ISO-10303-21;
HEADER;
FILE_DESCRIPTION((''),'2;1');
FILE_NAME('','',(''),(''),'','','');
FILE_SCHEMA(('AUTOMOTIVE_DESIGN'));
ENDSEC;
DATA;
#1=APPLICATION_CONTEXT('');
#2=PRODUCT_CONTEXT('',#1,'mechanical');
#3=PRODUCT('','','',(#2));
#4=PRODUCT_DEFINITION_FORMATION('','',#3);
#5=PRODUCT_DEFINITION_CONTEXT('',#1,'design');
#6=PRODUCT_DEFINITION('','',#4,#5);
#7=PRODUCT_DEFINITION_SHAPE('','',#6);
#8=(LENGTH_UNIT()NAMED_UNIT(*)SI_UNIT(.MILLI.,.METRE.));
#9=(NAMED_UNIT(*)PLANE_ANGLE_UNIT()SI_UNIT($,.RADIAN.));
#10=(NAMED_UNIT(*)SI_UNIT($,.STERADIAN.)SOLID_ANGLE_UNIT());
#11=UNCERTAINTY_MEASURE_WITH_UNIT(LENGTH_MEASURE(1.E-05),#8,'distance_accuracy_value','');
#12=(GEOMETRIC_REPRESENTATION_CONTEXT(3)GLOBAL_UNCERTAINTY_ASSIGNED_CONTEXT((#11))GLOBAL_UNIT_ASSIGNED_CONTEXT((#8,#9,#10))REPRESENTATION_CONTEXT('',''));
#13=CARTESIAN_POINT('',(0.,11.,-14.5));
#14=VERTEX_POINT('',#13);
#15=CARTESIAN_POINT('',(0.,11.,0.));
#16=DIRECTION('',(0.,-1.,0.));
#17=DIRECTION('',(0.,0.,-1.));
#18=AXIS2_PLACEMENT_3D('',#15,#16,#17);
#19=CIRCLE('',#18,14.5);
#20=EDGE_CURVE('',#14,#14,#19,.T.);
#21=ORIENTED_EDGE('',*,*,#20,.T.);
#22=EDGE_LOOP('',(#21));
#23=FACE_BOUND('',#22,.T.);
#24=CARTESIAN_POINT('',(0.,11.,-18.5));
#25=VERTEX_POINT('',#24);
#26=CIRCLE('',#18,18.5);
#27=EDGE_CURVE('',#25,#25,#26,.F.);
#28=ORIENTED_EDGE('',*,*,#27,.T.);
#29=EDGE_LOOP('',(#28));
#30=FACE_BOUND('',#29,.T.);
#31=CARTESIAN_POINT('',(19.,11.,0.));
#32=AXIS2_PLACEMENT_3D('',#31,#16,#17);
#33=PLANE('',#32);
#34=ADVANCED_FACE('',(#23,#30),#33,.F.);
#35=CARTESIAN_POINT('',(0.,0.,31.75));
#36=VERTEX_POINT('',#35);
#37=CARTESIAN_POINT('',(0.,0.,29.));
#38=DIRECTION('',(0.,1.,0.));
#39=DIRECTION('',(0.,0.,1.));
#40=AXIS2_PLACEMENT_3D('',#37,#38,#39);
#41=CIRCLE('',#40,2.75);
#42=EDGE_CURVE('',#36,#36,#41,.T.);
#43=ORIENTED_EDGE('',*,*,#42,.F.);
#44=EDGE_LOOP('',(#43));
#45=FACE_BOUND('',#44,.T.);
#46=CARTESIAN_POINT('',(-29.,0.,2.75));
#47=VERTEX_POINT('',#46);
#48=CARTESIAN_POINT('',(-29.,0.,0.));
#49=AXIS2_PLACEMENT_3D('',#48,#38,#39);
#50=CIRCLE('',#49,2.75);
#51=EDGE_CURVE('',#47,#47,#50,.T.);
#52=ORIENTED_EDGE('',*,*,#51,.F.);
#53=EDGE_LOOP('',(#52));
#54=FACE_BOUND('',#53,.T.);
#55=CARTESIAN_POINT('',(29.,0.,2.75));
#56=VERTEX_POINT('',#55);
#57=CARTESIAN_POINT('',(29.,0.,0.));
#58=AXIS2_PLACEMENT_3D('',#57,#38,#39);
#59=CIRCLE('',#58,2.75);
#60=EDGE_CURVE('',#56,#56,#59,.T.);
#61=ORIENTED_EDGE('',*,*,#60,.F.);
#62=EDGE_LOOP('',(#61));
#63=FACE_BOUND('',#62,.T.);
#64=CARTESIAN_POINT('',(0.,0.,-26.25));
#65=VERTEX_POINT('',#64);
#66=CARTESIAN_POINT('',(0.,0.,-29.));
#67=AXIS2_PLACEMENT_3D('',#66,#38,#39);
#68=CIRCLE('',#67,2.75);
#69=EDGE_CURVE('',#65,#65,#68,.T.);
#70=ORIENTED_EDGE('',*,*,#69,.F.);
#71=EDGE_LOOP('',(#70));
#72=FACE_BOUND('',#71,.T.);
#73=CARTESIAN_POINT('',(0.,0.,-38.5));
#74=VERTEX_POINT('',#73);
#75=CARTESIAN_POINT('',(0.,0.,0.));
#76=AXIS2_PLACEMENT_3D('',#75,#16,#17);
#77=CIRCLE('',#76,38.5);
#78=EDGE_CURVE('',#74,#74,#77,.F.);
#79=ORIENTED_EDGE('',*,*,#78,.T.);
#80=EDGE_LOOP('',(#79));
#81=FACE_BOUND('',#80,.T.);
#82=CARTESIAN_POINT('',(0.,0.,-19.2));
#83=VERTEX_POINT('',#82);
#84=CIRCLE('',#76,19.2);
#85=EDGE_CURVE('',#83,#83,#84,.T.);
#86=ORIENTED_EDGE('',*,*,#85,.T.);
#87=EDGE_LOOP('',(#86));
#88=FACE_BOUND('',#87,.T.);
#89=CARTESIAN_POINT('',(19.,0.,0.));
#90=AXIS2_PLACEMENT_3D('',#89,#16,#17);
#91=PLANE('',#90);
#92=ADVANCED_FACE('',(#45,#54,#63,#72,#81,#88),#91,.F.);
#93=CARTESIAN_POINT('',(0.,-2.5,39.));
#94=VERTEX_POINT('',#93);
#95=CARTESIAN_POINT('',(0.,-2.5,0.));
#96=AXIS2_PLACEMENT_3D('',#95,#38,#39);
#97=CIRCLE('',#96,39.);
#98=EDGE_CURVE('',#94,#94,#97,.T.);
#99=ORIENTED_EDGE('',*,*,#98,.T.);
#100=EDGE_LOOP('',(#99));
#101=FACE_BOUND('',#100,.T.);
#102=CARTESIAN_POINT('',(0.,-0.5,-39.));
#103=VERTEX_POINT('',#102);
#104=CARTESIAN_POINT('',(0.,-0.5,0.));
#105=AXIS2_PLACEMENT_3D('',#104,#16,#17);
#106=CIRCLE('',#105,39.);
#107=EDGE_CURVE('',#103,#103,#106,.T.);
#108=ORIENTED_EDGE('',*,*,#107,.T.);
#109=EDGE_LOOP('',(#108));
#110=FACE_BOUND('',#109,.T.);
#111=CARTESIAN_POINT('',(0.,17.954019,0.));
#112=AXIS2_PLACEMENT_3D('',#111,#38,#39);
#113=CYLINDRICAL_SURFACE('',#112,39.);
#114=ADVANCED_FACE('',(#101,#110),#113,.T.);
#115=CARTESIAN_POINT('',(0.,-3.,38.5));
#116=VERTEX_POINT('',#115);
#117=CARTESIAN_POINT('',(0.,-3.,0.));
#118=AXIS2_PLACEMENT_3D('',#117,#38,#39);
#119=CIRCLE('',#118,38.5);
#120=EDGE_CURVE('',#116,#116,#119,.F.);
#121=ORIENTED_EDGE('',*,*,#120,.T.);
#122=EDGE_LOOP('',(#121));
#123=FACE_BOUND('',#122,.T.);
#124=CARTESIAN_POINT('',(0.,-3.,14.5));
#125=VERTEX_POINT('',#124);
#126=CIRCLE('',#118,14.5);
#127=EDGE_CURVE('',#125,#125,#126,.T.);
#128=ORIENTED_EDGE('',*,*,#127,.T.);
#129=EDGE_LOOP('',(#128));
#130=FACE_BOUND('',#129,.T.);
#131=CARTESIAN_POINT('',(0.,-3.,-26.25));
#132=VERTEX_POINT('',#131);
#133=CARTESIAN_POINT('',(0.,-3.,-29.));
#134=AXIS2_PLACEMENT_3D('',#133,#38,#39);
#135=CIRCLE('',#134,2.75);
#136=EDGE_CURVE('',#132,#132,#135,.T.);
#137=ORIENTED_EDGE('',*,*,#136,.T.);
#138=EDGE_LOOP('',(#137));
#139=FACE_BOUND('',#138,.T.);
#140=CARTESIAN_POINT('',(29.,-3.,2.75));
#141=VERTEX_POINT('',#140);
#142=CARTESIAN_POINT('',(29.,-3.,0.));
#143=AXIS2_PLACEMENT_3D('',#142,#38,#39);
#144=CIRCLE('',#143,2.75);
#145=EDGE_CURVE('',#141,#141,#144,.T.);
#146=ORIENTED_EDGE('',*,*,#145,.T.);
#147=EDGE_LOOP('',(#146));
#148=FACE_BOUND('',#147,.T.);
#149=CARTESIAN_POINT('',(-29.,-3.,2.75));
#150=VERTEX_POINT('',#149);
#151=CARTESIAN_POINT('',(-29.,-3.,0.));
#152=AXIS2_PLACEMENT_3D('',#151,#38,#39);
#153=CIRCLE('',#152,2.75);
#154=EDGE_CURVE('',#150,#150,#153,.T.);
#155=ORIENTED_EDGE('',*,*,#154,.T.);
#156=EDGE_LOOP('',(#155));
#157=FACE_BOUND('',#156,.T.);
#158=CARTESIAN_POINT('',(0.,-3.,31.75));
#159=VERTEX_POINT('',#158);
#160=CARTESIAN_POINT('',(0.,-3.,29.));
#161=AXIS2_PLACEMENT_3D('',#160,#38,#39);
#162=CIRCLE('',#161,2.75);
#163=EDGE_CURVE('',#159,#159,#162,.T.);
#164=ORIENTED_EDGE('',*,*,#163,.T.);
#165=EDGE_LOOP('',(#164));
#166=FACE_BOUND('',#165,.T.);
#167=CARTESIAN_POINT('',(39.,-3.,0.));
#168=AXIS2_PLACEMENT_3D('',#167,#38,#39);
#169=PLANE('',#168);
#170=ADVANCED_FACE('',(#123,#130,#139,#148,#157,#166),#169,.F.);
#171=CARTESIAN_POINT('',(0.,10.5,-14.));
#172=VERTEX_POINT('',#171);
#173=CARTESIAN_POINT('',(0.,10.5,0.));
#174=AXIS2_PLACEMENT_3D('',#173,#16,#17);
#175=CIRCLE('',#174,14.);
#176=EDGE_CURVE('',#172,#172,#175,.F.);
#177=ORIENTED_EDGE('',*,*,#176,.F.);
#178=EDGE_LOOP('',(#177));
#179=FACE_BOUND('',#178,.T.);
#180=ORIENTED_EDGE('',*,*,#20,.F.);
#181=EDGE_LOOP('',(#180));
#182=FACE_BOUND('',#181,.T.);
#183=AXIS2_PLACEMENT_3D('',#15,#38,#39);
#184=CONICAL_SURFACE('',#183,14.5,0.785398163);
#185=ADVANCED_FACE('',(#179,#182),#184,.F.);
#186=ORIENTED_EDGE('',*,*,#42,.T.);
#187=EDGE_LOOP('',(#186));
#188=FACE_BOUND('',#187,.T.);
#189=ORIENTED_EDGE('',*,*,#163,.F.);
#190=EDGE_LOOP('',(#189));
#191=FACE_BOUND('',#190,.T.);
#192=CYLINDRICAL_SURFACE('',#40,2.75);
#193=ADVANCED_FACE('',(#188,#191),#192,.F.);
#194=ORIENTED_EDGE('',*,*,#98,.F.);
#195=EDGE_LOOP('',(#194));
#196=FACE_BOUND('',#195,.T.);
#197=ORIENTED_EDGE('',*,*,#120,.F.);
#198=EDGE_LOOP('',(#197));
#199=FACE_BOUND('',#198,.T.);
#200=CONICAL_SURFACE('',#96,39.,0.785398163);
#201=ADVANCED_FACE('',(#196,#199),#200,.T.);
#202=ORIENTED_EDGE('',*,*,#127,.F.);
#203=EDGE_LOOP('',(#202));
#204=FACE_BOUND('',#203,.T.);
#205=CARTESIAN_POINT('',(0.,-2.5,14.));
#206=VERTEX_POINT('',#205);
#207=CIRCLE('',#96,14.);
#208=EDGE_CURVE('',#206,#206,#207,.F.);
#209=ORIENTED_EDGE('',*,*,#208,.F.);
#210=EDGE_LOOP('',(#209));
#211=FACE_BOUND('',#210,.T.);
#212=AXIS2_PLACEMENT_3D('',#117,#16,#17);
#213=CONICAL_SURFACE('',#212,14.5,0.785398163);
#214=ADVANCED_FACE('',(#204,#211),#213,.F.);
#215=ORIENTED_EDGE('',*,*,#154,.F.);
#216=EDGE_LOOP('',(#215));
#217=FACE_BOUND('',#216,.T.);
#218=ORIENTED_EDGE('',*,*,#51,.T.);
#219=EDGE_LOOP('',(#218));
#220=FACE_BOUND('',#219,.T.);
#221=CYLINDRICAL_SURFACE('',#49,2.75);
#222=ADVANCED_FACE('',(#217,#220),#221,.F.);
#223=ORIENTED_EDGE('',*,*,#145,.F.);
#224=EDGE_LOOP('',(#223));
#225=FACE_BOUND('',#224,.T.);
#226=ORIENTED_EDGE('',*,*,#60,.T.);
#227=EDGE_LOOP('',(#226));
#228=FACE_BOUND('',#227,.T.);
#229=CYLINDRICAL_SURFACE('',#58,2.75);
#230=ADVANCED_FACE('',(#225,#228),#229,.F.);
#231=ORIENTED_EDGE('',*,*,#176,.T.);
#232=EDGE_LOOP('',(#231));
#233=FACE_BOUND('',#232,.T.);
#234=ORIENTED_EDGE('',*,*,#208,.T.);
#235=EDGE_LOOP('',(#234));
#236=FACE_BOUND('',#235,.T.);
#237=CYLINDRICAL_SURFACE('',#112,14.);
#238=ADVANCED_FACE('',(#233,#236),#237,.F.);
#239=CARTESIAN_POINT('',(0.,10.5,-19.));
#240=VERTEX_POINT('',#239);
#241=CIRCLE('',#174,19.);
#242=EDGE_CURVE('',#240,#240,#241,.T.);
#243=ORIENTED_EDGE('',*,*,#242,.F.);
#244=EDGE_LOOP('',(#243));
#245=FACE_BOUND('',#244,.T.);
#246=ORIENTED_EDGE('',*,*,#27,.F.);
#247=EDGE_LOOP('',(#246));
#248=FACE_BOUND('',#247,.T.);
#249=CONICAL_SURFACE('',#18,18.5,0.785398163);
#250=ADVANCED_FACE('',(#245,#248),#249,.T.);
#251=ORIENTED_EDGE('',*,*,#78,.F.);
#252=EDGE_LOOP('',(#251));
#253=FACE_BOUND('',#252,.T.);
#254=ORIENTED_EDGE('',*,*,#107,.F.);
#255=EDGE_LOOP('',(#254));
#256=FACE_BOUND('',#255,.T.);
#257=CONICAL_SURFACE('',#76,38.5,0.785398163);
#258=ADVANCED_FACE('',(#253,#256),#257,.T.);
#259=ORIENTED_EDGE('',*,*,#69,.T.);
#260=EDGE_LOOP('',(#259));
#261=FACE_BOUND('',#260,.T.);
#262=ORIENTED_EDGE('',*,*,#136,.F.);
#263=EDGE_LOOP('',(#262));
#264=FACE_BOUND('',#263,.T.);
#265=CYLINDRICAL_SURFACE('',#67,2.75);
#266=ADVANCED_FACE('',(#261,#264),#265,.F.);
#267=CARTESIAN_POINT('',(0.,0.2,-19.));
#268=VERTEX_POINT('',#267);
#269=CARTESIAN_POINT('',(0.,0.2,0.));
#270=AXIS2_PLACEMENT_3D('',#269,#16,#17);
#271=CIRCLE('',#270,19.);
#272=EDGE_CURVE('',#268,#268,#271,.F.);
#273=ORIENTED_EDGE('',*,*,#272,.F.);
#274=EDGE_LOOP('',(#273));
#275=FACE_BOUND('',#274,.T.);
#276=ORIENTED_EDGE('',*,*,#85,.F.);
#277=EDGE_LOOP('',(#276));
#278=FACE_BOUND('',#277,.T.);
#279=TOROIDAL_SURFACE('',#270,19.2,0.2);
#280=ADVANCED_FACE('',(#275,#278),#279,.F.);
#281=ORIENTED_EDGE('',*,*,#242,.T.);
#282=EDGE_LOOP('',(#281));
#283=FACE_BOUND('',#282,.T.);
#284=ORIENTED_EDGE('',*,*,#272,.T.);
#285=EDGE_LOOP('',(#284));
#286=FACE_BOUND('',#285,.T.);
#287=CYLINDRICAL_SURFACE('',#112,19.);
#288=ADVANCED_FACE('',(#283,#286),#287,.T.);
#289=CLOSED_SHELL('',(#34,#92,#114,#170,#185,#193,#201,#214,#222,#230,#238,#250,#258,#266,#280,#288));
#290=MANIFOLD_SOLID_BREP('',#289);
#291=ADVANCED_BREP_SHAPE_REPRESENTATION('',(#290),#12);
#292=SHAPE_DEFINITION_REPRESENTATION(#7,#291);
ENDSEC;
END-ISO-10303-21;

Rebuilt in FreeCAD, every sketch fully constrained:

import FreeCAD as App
import Part
import Sketcher
Q = App.Units.Quantity


def edges_at(feature, points):
    """Names of the edges that pass closest to the given points."""
    edges = feature.Shape.Edges
    near = lambda p: min(range(len(edges)), key=lambda i: edges[i].distToShape(Part.Vertex(*p))[0])
    return sorted({f"Edge{near(p) + 1}" for p in points})

doc = App.newDocument("Part")
params = doc.addObject("Spreadsheet::Sheet", "Params")
for row, (alias, value) in enumerate([
    ("sketch1_width", "25 mm"),
    ("sketch1_width2", "20 mm"),
    ("sketch1_width3", "7 mm"),
    ("sketch1_height", "11 mm"),
    ("sketch1_height2", "3 mm"),
    ("revolution_angle", "360 deg"),
    ("sketch2_diameter", "5.5 mm"),
    ("hole_diameter", "5.5 mm"),
    ("fillet_radius", "0.2 mm"),
    ("chamfer_size", "0.5 mm"),
    ("sketch3_diameter", "28 mm"),
    ("chamfer2_size", "0.5 mm"),
], start=1):
    params.set(f"A{row}", alias)
    params.set(f"B{row}", "=" + value)
    params.setAlias(f"B{row}", alias)

body = doc.addObject("PartDesign::Body", "Body")

# Sketch on XY plane
sketch1 = doc.addObject("Sketcher::SketchObject", "Sketch")
body.addObject(sketch1)
sketch1.AttachmentSupport = (doc.XY_Plane, [""])
sketch1.MapMode = "FlatFace"
sketch1.addGeometry(Part.LineSegment(App.Vector(14, 8, 0), App.Vector(14, -3, 0)), False)
sketch1.addGeometry(Part.LineSegment(App.Vector(14, -3, 0), App.Vector(39, -3, 0)), False)
sketch1.addGeometry(Part.LineSegment(App.Vector(39, -3, 0), App.Vector(39, 0, 0)), False)
sketch1.addGeometry(Part.LineSegment(App.Vector(39, 0, 0), App.Vector(19, 0, 0)), False)
sketch1.addGeometry(Part.LineSegment(App.Vector(19, 0, 0), App.Vector(19, 11, 0)), False)
sketch1.addGeometry(Part.LineSegment(App.Vector(19, 11, 0), App.Vector(12, 11, 0)), False)
sketch1.addGeometry(Part.LineSegment(App.Vector(12, 11, 0), App.Vector(12, 8, 0)), False)
sketch1.addGeometry(Part.LineSegment(App.Vector(12, 8, 0), App.Vector(14, 8, 0)), False)
sketch1.addConstraint(Sketcher.Constraint("Coincident", 0, 2, 1, 1))
sketch1.addConstraint(Sketcher.Constraint("Coincident", 1, 2, 2, 1))
sketch1.addConstraint(Sketcher.Constraint("Coincident", 2, 2, 3, 1))
sketch1.addConstraint(Sketcher.Constraint("Coincident", 3, 2, 4, 1))
sketch1.addConstraint(Sketcher.Constraint("Coincident", 4, 2, 5, 1))
sketch1.addConstraint(Sketcher.Constraint("Coincident", 5, 2, 6, 1))
sketch1.addConstraint(Sketcher.Constraint("Coincident", 6, 2, 7, 1))
sketch1.addConstraint(Sketcher.Constraint("Coincident", 7, 2, 0, 1))
sketch1.addConstraint(Sketcher.Constraint("Vertical", 0))
sketch1.addConstraint(Sketcher.Constraint("Horizontal", 1))
sketch1.addConstraint(Sketcher.Constraint("Vertical", 2))
sketch1.addConstraint(Sketcher.Constraint("Horizontal", 3))
sketch1.addConstraint(Sketcher.Constraint("Vertical", 4))
sketch1.addConstraint(Sketcher.Constraint("Horizontal", 5))
sketch1.addConstraint(Sketcher.Constraint("Vertical", 6))
sketch1.addConstraint(Sketcher.Constraint("Horizontal", 7))
sketch1.addConstraint(Sketcher.Constraint("PointOnObject", 2, 2, -1))
sketch1.addConstraint(Sketcher.Constraint("Equal", 0, 4))
sketch1.addConstraint(Sketcher.Constraint("DistanceX", 1, 1, 1, 2, Q("25 mm")))
sketch1.addConstraint(Sketcher.Constraint("DistanceX", 3, 2, 3, 1, Q("20 mm")))
sketch1.addConstraint(Sketcher.Constraint("DistanceX", 5, 2, 5, 1, Q("7 mm")))
sketch1.addConstraint(Sketcher.Constraint("DistanceY", 0, 2, 0, 1, Q("11 mm")))
sketch1.addConstraint(Sketcher.Constraint("DistanceY", 2, 1, 2, 2, Q("3 mm")))
sketch1.addConstraint(Sketcher.Constraint("DistanceX", -1, 1, 0, 2, Q("14 mm")))
sketch1.setExpression("Constraints[18]", "Params.sketch1_width")
sketch1.setExpression("Constraints[19]", "Params.sketch1_width2")
sketch1.setExpression("Constraints[20]", "Params.sketch1_width3")
sketch1.setExpression("Constraints[21]", "Params.sketch1_height")
sketch1.setExpression("Constraints[22]", "Params.sketch1_height2")
revolution = doc.addObject("PartDesign::Revolution", "Revolution")
body.addObject(revolution)
revolution.Profile = sketch1
revolution.ReferenceAxis = (sketch1, ["V_Axis"])
revolution.setExpression("Angle", "Params.revolution_angle")

# Sketch on XZ plane
sketch2 = doc.addObject("Sketcher::SketchObject", "Sketch001")
body.addObject(sketch2)
sketch2.AttachmentSupport = (doc.XZ_Plane, [""])
sketch2.MapMode = "FlatFace"
sketch2.addGeometry(Part.Circle(App.Vector(0, -29, 0), App.Vector(0, 0, 1), 2.8), False)
sketch2.addGeometry(Part.Circle(App.Vector(29, 0, 0), App.Vector(0, 0, 1), 2.8), False)
sketch2.addGeometry(Part.Circle(App.Vector(0, 29, 0), App.Vector(0, 0, 1), 2.8), False)
sketch2.addGeometry(Part.Circle(App.Vector(-29, 0, 0), App.Vector(0, 0, 1), 2.8), False)
sketch2.addConstraint(Sketcher.Constraint("Equal", 0, 1))
sketch2.addConstraint(Sketcher.Constraint("Equal", 1, 2))
sketch2.addConstraint(Sketcher.Constraint("Equal", 2, 3))
sketch2.addConstraint(Sketcher.Constraint("Symmetric", 0, 3, 2, 3, -1, 1))
sketch2.addConstraint(Sketcher.Constraint("Symmetric", 1, 3, 3, 3, -1, 1))
sketch2.addConstraint(Sketcher.Constraint("PointOnObject", 0, 3, -2))
sketch2.addConstraint(Sketcher.Constraint("PointOnObject", 1, 3, -1))
sketch2.addConstraint(Sketcher.Constraint("Diameter", 0, Q("5.5 mm")))
sketch2.addConstraint(Sketcher.Constraint("DistanceY", 0, 3, -1, 1, Q("29 mm")))
sketch2.addConstraint(Sketcher.Constraint("DistanceX", -1, 1, 1, 3, Q("29 mm")))
sketch2.setExpression("Constraints[7]", "Params.sketch2_diameter")
doc.recompute()
hole = doc.addObject("PartDesign::Hole", "Hole")
body.addObject(hole)
hole.Profile = sketch2
hole.ThreadType = "None"
hole.setExpression("Diameter", "Params.hole_diameter")
hole.DepthType = "ThroughAll"
hole.Reversed = True
doc.recompute()

fillet = doc.addObject("PartDesign::Fillet", "Fillet")
body.addObject(fillet)
fillet.Base = (hole, edges_at(hole, [(0, 0, -19), (0, 8, -14)]))
fillet.setExpression("Radius", "Params.fillet_radius")
doc.recompute()

chamfer = doc.addObject("PartDesign::Chamfer", "Chamfer")
body.addObject(chamfer)
chamfer.Base = (fillet, edges_at(fillet, [
    (0, 8, -12),
    (0, 11, -12),
    (0, 11, -19),
    (0, 0, -39),
    (0, -3, -39),
    (0, -3, -14),
]))
chamfer.setExpression("Size", "Params.chamfer_size")

# Sketch on XZ plane
sketch3 = doc.addObject("Sketcher::SketchObject", "Sketch002")
body.addObject(sketch3)
sketch3.AttachmentSupport = (doc.XZ_Plane, [""])
sketch3.MapMode = "FlatFace"
sketch3.AttachmentOffset = App.Placement(App.Vector(0, 0, 3), App.Rotation())
sketch3.addGeometry(Part.Circle(App.Vector(0, 0, 0), App.Vector(0, 0, 1), 14), False)
sketch3.addConstraint(Sketcher.Constraint("Coincident", 0, 3, -1, 1))
sketch3.addConstraint(Sketcher.Constraint("Diameter", 0, Q("28 mm")))
sketch3.setExpression("Constraints[1]", "Params.sketch3_diameter")
pocket1 = doc.addObject("PartDesign::Pocket", "Pocket")
body.addObject(pocket1)
pocket1.Profile = sketch3
pocket1.Type = "ThroughAll"
doc.recompute()

chamfer2 = doc.addObject("PartDesign::Chamfer", "Chamfer001")
body.addObject(chamfer2)
chamfer2.Base = (pocket1, edges_at(pocket1, [(0, 11, -14)]))
chamfer2.setExpression("Size", "Params.chamfer2_size")

doc.recompute()
